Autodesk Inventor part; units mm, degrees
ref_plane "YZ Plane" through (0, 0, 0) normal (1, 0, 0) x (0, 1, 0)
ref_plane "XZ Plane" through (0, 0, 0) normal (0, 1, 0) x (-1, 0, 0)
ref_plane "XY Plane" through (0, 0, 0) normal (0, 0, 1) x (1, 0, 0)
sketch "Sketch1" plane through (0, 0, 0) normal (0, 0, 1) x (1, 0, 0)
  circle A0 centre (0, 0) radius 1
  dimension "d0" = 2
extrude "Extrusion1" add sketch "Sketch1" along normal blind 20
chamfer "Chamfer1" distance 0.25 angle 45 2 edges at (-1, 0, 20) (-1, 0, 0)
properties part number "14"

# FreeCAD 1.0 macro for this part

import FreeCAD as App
import Part
import Sketcher

V = App.Vector
Q = App.Units.Quantity


def edges_at(feature, points):
    """Names of the edges that pass closest to the given points."""
    edges = feature.Shape.Edges
    near = lambda p: min(range(len(edges)), key=lambda i: edges[i].distToShape(Part.Vertex(*p))[0])
    return sorted({f"Edge{near(p) + 1}" for p in points})

doc = App.newDocument("Part")
body = doc.addObject("PartDesign::Body", "Body")

# Sketch on XY plane
sketch1 = body.newObject("Sketcher::SketchObject", "Sketch")
sketch1.AttachmentSupport = (doc.getObject("XY_Plane"), [""])
sketch1.MapMode = "FlatFace"
sketch1.addGeometry(Part.Circle(V(0, 0, 0), V(0, 0, 1), 1), False)
sketch1.addConstraint(Sketcher.Constraint("Coincident", 0, 3, -1, 1))
sketch1.addConstraint(Sketcher.Constraint("Diameter", 0, Q("2 mm")))
pad1 = body.newObject("PartDesign::Pad", "Pad")
pad1.Profile = sketch1
pad1.Length = 20
doc.recompute()

chamfer = body.newObject("PartDesign::Chamfer", "Chamfer")
chamfer.Base = (pad1, edges_at(pad1, [(-1, 0, 20), (-1, 0, 0)]))
chamfer.Size = 0.25

doc.recompute()
